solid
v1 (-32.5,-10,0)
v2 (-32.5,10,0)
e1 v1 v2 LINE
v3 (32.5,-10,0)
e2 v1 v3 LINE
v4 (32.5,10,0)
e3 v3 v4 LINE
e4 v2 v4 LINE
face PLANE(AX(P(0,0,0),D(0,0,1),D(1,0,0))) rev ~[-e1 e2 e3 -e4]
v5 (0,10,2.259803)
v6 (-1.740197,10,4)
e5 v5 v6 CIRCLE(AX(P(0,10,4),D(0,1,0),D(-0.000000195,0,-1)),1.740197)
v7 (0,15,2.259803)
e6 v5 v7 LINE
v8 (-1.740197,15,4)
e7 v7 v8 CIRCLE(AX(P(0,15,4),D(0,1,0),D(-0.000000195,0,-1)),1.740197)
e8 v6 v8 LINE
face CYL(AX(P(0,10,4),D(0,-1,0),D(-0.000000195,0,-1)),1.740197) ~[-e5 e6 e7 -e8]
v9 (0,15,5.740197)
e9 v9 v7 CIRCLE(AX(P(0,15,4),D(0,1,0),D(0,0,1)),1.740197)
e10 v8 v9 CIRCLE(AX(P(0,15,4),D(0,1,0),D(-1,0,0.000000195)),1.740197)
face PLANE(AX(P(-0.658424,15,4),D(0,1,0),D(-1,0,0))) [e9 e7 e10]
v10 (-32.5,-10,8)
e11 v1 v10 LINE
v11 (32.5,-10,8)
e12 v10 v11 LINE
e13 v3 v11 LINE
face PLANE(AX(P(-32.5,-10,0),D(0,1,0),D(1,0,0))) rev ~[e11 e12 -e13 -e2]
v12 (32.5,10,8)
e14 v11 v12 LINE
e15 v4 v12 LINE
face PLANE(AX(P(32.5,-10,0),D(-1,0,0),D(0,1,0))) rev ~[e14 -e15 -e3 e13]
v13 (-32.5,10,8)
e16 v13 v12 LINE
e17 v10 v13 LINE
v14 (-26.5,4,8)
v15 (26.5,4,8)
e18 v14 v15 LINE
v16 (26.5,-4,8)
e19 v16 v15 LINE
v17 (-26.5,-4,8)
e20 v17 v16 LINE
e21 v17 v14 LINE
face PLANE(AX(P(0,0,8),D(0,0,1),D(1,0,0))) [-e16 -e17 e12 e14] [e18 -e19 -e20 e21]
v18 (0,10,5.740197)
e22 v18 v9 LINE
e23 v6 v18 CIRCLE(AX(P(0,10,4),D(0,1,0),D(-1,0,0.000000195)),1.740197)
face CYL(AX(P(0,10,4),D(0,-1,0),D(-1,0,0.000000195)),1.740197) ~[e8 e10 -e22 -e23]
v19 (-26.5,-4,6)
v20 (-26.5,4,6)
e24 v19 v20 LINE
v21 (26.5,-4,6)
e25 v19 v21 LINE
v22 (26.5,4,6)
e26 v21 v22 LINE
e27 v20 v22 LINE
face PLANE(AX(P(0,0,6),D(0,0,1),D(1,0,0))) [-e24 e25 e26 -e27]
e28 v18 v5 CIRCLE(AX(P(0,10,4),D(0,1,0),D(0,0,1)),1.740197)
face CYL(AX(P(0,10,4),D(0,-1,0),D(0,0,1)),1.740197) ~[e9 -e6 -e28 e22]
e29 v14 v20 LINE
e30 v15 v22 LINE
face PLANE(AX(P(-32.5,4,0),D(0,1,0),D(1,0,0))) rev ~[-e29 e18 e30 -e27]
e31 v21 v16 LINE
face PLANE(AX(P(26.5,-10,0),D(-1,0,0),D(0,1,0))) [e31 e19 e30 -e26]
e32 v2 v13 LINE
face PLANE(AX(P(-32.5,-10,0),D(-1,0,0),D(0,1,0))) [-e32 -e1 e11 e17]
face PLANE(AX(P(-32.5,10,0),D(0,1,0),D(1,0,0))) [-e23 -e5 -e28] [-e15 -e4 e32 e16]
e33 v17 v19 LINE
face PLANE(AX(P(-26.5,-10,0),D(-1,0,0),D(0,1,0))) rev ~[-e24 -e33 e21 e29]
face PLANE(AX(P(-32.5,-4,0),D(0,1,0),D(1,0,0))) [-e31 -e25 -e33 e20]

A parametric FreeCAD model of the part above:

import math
import FreeCAD as App
import Part
import Sketcher

V = App.Vector


def faces_at(feature, points):
    """Names of the faces that lie closest to the given points."""
    faces = feature.Shape.Faces
    near = lambda p: min(range(len(faces)), key=lambda i: faces[i].distToShape(Part.Vertex(*p))[0])
    return sorted({f"Face{near(p) + 1}" for p in points})


def add_polygon(sketch, points):
    """Adds a closed chain of lines whose ends are joined by coincident constraints."""
    first, n = sketch.GeometryCount, len(points)
    for a, b in zip(points, points[1:] + points[:1]):
        sketch.addGeometry(Part.LineSegment(App.Vector(*a, 0), App.Vector(*b, 0)), False)
    for i in range(n):
        sketch.addConstraint(Sketcher.Constraint("Coincident", first + i, 2, first + (i + 1) % n, 1))

doc = App.newDocument("Part")
body = doc.addObject("PartDesign::Body", "Body")

# Sketch on XY plane
sketch1 = body.newObject("Sketcher::SketchObject", "Sketch")
sketch1.AttachmentSupport = (doc.getObject("XY_Plane"), [""])
sketch1.MapMode = "FlatFace"
add_polygon(sketch1, [(-32, 10), (-32, -10), (32, -10), (32, 10)])  # lines 0-3
sketch1.addConstraint(Sketcher.Constraint("Vertical", 0))
sketch1.addConstraint(Sketcher.Constraint("Horizontal", 1))
sketch1.addConstraint(Sketcher.Constraint("Vertical", 2))
sketch1.addConstraint(Sketcher.Constraint("Horizontal", 3))
sketch1.addConstraint(Sketcher.Constraint("Symmetric", 0, 2, 2, 2, -1, 1))
sketch1.addConstraint(Sketcher.Constraint("DistanceX", 1, 1, 1, 2, 65.0))
sketch1.addConstraint(Sketcher.Constraint("DistanceY", 0, 2, 0, 1, 20.0))
pad1 = body.newObject("PartDesign::Pad", "Pad")
pad1.Profile = sketch1
pad1.Length = 8
doc.recompute()

thickness = body.newObject("PartDesign::Thickness", "Thickness")
thickness.Base = (pad1, faces_at(pad1, [(0, 0, 8)]))
thickness.Value = 6
thickness.Reversed = True
thickness.Join = "Arc"

# Sketch on XZ plane
sketch2 = body.newObject("Sketcher::SketchObject", "Sketch001")
sketch2.AttachmentSupport = (doc.getObject("XZ_Plane"), [""])
sketch2.MapMode = "FlatFace"
sketch2.AttachmentOffset = App.Placement(V(0, 0, -10), App.Rotation())
sketch2.addGeometry(Part.ArcOfCircle(Part.Circle(V(0, 4, 0), V(0, 0, 1), 1.7), math.radians(90), math.radians(180)), False)
sketch2.addGeometry(Part.ArcOfCircle(Part.Circle(V(0, 4, 0), V(0, 0, 1), 1.7), math.radians(-90), math.radians(90)), False)
sketch2.addGeometry(Part.ArcOfCircle(Part.Circle(V(0, 4, 0), V(0, 0, 1), 1.7), math.radians(-180), math.radians(-90)), False)
sketch2.addConstraint(Sketcher.Constraint("Tangent", 0, 1, 1, 2))
sketch2.addConstraint(Sketcher.Constraint("Tangent", 1, 1, 2, 2))
sketch2.addConstraint(Sketcher.Constraint("Tangent", 2, 1, 0, 2))
sketch2.addConstraint(Sketcher.Constraint("PointOnObject", 0, 3, -2))
sketch2.addConstraint(Sketcher.Constraint("PointOnObject", 0, 1, -2))
sketch2.addConstraint(Sketcher.Constraint("PointOnObject", 1, 1, -2))
sketch2.addConstraint(Sketcher.Constraint("Horizontal", 1, 3, 2, 1))
sketch2.addConstraint(Sketcher.Constraint("DistanceY", -1, 1, 0, 3, 4.0))
sketch2.addConstraint(Sketcher.Constraint("Radius", 0, 1.740197))
pad2 = body.newObject("PartDesign::Pad", "Pad001")
pad2.Profile = sketch2
pad2.Length = 5
pad2.Reversed = True

doc.recompute()
